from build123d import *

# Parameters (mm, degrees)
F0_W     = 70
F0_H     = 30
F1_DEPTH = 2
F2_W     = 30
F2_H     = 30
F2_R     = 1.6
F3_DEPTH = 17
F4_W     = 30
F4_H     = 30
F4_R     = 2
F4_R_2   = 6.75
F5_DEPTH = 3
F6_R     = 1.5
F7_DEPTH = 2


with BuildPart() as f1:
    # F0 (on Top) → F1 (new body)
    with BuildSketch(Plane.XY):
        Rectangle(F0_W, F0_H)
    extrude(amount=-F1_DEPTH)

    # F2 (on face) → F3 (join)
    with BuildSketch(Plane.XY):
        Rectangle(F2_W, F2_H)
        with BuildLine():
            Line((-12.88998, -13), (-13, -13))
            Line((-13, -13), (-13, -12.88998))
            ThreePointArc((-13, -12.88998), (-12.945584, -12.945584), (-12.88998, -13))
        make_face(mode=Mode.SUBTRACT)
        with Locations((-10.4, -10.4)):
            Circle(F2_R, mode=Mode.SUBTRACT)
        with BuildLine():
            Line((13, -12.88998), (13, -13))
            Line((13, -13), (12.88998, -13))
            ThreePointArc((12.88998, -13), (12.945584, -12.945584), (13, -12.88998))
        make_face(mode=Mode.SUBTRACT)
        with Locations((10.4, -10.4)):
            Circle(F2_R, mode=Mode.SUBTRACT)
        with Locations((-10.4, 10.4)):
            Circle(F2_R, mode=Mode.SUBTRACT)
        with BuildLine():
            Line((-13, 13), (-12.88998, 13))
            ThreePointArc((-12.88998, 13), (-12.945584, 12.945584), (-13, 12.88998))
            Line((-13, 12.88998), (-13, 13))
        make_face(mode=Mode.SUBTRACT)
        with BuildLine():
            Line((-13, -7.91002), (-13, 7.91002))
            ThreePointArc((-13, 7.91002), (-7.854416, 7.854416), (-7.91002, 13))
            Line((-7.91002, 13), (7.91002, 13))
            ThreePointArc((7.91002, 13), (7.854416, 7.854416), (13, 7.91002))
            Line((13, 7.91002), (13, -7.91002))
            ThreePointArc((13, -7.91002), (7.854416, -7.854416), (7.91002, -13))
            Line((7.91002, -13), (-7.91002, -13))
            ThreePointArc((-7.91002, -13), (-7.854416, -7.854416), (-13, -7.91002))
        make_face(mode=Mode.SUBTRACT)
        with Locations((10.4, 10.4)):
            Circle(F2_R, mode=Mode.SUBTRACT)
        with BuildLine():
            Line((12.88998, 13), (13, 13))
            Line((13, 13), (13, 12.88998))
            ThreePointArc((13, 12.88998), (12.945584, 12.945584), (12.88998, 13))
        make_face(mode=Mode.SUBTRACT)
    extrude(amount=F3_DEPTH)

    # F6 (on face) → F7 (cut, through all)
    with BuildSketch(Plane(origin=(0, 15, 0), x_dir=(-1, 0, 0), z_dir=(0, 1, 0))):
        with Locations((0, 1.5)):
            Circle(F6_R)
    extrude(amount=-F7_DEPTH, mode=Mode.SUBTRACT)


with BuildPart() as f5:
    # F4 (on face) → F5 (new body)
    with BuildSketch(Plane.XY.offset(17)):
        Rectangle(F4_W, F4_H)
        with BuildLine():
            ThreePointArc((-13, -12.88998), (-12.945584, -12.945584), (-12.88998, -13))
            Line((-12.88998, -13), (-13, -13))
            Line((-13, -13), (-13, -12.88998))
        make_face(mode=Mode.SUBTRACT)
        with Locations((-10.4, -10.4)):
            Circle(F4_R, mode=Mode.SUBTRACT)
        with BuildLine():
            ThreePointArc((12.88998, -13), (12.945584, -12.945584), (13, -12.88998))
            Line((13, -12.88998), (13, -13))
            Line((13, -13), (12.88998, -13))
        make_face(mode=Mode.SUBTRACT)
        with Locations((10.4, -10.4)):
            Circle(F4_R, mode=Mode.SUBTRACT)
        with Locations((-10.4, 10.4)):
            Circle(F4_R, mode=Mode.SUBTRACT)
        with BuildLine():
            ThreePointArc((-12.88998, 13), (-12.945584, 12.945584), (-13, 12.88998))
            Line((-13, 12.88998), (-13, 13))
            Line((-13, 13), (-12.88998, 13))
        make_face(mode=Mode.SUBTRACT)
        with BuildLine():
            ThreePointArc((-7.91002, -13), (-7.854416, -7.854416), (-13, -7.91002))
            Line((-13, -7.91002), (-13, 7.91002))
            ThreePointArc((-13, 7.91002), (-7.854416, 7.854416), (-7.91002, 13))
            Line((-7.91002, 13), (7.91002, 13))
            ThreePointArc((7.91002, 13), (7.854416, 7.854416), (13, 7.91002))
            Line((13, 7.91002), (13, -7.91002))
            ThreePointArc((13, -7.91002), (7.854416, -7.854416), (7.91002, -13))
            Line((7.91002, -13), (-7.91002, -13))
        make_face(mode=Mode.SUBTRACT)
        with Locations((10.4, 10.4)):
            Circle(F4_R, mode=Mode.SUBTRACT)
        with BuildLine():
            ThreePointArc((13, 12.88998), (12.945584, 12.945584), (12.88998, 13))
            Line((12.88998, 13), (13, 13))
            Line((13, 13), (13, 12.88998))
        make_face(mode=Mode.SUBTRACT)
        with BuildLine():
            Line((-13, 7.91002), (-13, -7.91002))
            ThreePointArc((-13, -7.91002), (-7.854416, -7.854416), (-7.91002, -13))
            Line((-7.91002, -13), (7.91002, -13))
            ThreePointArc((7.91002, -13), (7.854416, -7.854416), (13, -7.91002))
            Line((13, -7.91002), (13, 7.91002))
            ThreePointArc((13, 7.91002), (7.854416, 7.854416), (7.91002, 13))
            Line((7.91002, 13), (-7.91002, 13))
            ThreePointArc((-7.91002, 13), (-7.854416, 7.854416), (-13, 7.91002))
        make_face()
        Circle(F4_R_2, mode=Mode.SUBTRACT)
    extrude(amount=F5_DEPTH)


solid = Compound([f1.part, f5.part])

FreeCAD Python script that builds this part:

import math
import FreeCAD as App
import Part
import Sketcher


def add_polygon(sketch, points):
    """Adds a closed chain of lines whose ends are joined by coincident constraints."""
    first, n = sketch.GeometryCount, len(points)
    for a, b in zip(points, points[1:] + points[:1]):
        sketch.addGeometry(Part.LineSegment(App.Vector(*a, 0), App.Vector(*b, 0)), False)
    for i in range(n):
        sketch.addConstraint(Sketcher.Constraint("Coincident", first + i, 2, first + (i + 1) % n, 1))

doc = App.newDocument("Part")
params = doc.addObject("Spreadsheet::Sheet", "Params")
for row, (alias, value) in enumerate([
    ("sketch1_width", "70 mm"),
    ("sketch1_height", "30 mm"),
    ("pad1_length", "2 mm"),
    ("sketch2_diameter", "3.2 mm"),
    ("sketch2_radius", "3.6 mm"),
    ("sketch2_width", "30 mm"),
    ("pad2_length", "17 mm"),
    ("sketch3_diameter", "3 mm"),
    ("pocket1_length", "2 mm"),
    ("sketch4_diameter", "4 mm"),
    ("sketch4_diameter2", "13.5 mm"),
    ("sketch4_width", "30 mm"),
    ("pad3_length", "3 mm"),
], start=1):
    params.set(f"A{row}", alias)
    params.set(f"B{row}", "=" + value)
    params.setAlias(f"B{row}", alias)

body = doc.addObject("PartDesign::Body", "Body")

# Sketch on XY plane
sketch1 = body.newObject("Sketcher::SketchObject", "Sketch")
sketch1.AttachmentSupport = (doc.getObject("XY_Plane"), [""])
sketch1.MapMode = "FlatFace"
add_polygon(sketch1, [(-35, 15), (-35, -15), (35, -15), (35, 15)])  # lines 0-3
sketch1.addConstraint([
    Sketcher.Constraint("Vertical", 0),
    Sketcher.Constraint("Horizontal", 1),
    Sketcher.Constraint("Vertical", 2),
    Sketcher.Constraint("Horizontal", 3),
    Sketcher.Constraint("Symmetric", 0, 2, 2, 2, -1, 1),
    Sketcher.Constraint("DistanceX", 1, 1, 1, 2, 70.0),
    Sketcher.Constraint("DistanceY", 0, 2, 0, 1, 30.0),
])
sketch1.setExpression("Constraints[9]", "Params.sketch1_width")
sketch1.setExpression("Constraints[10]", "Params.sketch1_height")
pad1 = body.newObject("PartDesign::Pad", "Pad")
pad1.Profile = sketch1
pad1.setExpression("Length", "Params.pad1_length")
pad1.Reversed = True

# Sketch on XY plane
sketch2 = body.newObject("Sketcher::SketchObject", "Sketch001")
sketch2.AttachmentSupport = (doc.getObject("XY_Plane"), [""])
sketch2.MapMode = "FlatFace"
add_polygon(sketch2, [(-15, 15), (-15, -15), (15, -15), (15, 15)])  # lines 0-3
sketch2.addGeometry(Part.ArcOfCircle(Part.Circle(App.Vector(-10.398065, -10.398065, 0), App.Vector(0, 0, 1), 3.602736), math.radians(-136.237316), math.radians(-133.762684)), False)  # 4
sketch2.addGeometry(Part.LineSegment(App.Vector(-12.88998, -13, 0), App.Vector(-13, -13, 0)), False)  # 5
sketch2.addGeometry(Part.LineSegment(App.Vector(-13, -13, 0), App.Vector(-13, -12.88998, 0)), False)  # 6
sketch2.addGeometry(Part.Circle(App.Vector(-10.4, -10.4, 0), App.Vector(0, 0, 1), 1.6), False)  # 7
sketch2.addGeometry(Part.ArcOfCircle(Part.Circle(App.Vector(10.398065, -10.398065, 0), App.Vector(0, 0, 1), 3.602736), math.radians(-46.237316), math.radians(-43.762684)), False)  # 8
sketch2.addGeometry(Part.LineSegment(App.Vector(13, -12.88998, 0), App.Vector(13, -13, 0)), False)  # 9
sketch2.addGeometry(Part.LineSegment(App.Vector(13, -13, 0), App.Vector(12.88998, -13, 0)), False)  # 10
sketch2.addGeometry(Part.Circle(App.Vector(10.4, -10.4, 0), App.Vector(0, 0, 1), 1.6), False)  # 11
sketch2.addGeometry(Part.Circle(App.Vector(-10.4, 10.4, 0), App.Vector(0, 0, 1), 1.6), False)  # 12
sketch2.addGeometry(Part.LineSegment(App.Vector(-13, 12.88998, 0), App.Vector(-13, 13, 0)), False)  # 13
sketch2.addGeometry(Part.LineSegment(App.Vector(-13, 13, 0), App.Vector(-12.88998, 13, 0)), False)  # 14
sketch2.addGeometry(Part.ArcOfCircle(Part.Circle(App.Vector(-10.398065, 10.398065, 0), App.Vector(0, 0, 1), 3.602736), math.radians(133.762684), math.radians(136.237316)), False)  # 15
sketch2.addGeometry(Part.ArcOfCircle(Part.Circle(App.Vector(-10.4, -10.4, 0), App.Vector(0, 0, 1), 3.6), math.radians(-46.238246), math.radians(136.238246)), False)  # 16
sketch2.addGeometry(Part.LineSegment(App.Vector(-13, -7.91002, 0), App.Vector(-13, 7.91002, 0)), False)  # 17
sketch2.addGeometry(Part.ArcOfCircle(Part.Circle(App.Vector(-10.4, 10.4, 0), App.Vector(0, 0, 1), 3.6), math.radians(-136.238246), math.radians(46.238246)), False)  # 18
sketch2.addGeometry(Part.LineSegment(App.Vector(-7.91002, 13, 0), App.Vector(7.91002, 13, 0)), False)  # 19
sketch2.addGeometry(Part.ArcOfCircle(Part.Circle(App.Vector(10.4, 10.4, 0), App.Vector(0, 0, 1), 3.6), math.radians(133.761754), math.radians(316.238246)), False)  # 20
sketch2.addGeometry(Part.LineSegment(App.Vector(13, 7.91002, 0), App.Vector(13, -7.91002, 0)), False)  # 21
sketch2.addGeometry(Part.ArcOfCircle(Part.Circle(App.Vector(10.4, -10.4, 0), App.Vector(0, 0, 1), 3.6), math.radians(43.761754), math.radians(226.238246)), False)  # 22
sketch2.addGeometry(Part.LineSegment(App.Vector(7.91002, -13, 0), App.Vector(-7.91002, -13, 0)), False)  # 23
sketch2.addGeometry(Part.Circle(App.Vector(10.4, 10.4, 0), App.Vector(0, 0, 1), 1.6), False)  # 24
sketch2.addGeometry(Part.ArcOfCircle(Part.Circle(App.Vector(10.398065, 10.398065, 0), App.Vector(0, 0, 1), 3.602736), math.radians(43.762684), math.radians(46.237316)), False)  # 25
sketch2.addGeometry(Part.LineSegment(App.Vector(12.88998, 13, 0), App.Vector(13, 13, 0)), False)  # 26
sketch2.addGeometry(Part.LineSegment(App.Vector(13, 13, 0), App.Vector(13, 12.88998, 0)), False)  # 27
sketch2.addConstraint([
    Sketcher.Constraint("Coincident", 4, 2, 5, 1),
    Sketcher.Constraint("Coincident", 5, 2, 6, 1),
    Sketcher.Constraint("Coincident", 6, 2, 4, 1),
    Sketcher.Constraint("Coincident", 8, 2, 9, 1),
    Sketcher.Constraint("Coincident", 9, 2, 10, 1),
    Sketcher.Constraint("Coincident", 10, 2, 8, 1),
    Sketcher.Constraint("Coincident", 13, 2, 14, 1),
    Sketcher.Constraint("Coincident", 14, 2, 15, 1),
    Sketcher.Constraint("Coincident", 15, 2, 13, 1),
    Sketcher.Constraint("Coincident", 16, 2, 17, 1),
    Sketcher.Constraint("Coincident", 17, 2, 18, 1),
    Sketcher.Constraint("Coincident", 18, 2, 19, 1),
    Sketcher.Constraint("Coincident", 19, 2, 20, 1),
    Sketcher.Constraint("Coincident", 20, 2, 21, 1),
    Sketcher.Constraint("Coincident", 21, 2, 22, 1),
    Sketcher.Constraint("Coincident", 22, 2, 23, 1),
    Sketcher.Constraint("Coincident", 23, 2, 16, 1),
    Sketcher.Constraint("Coincident", 25, 2, 26, 1),
    Sketcher.Constraint("Coincident", 26, 2, 27, 1),
    Sketcher.Constraint("Coincident", 27, 2, 25, 1),
    Sketcher.Constraint("Vertical", 0),
    Sketcher.Constraint("Horizontal", 1),
    Sketcher.Constraint("Vertical", 2),
    Sketcher.Constraint("Horizontal", 3),
    Sketcher.Constraint("Horizontal", 5),
    Sketcher.Constraint("Vertical", 6),
    Sketcher.Constraint("Vertical", 9),
    Sketcher.Constraint("Horizontal", 10),
    Sketcher.Constraint("Vertical", 13),
    Sketcher.Constraint("Horizontal", 14),
    Sketcher.Constraint("Vertical", 17),
    Sketcher.Constraint("Horizontal", 19),
    Sketcher.Constraint("Vertical", 21),
    Sketcher.Constraint("Horizontal", 23),
    Sketcher.Constraint("Horizontal", 26),
    Sketcher.Constraint("Vertical", 27),
    Sketcher.Constraint("Coincident", 16, 3, 7, 3),
    Sketcher.Constraint("Coincident", 18, 3, 12, 3),
    Sketcher.Constraint("Coincident", 22, 3, 11, 3),
    Sketcher.Constraint("Coincident", 24, 3, 20, 3),
    Sketcher.Constraint("Equal", 4, 8),
    Sketcher.Constraint("Equal", 7, 11),
    Sketcher.Constraint("Equal", 11, 12),
    Sketcher.Constraint("Equal", 8, 15),
    Sketcher.Constraint("Equal", 16, 18),
    Sketcher.Constraint("Equal", 18, 20),
    Sketcher.Constraint("Equal", 20, 22),
    Sketcher.Constraint("Equal", 12, 24),
    Sketcher.Constraint("Equal", 15, 25),
    Sketcher.Constraint("Symmetric", 11, 3, 12, 3, -1, 1),
    Sketcher.Constraint("Symmetric", 8, 3, 15, 3, -1, 1),
    Sketcher.Constraint("Symmetric", 7, 3, 20, 3, -1, 1),
    Sketcher.Constraint("Symmetric", 4, 3, 25, 3, -1, 1),
    Sketcher.Constraint("Symmetric", 0, 2, 2, 2, -1, 1),
    Sketcher.Constraint("Symmetric", 9, 2, 13, 2, -1, 1),
    Sketcher.Constraint("Symmetric", 5, 2, 26, 2, -1, 1),
    Sketcher.Constraint("Symmetric", 4, 3, 8, 3, -2),
    Sketcher.Constraint("Symmetric", 7, 3, 11, 3, -2),
    Sketcher.Constraint("Symmetric", 5, 2, 9, 2, -2),
    Sketcher.Constraint("Horizontal", 14, 2, 18, 2),
    Sketcher.Constraint("Horizontal", 17, 2, 20, 2),
    Sketcher.Constraint("Horizontal", 10, 2, 22, 2),
    Sketcher.Constraint("Vertical", 15, 2, 16, 2),
    Sketcher.Constraint("Equal", 3, 0),
    Sketcher.Constraint("Equal", 26, 6),
    Sketcher.Constraint("Equal", 23, 17),
    Sketcher.Constraint("Diameter", 7, 3.2),
    Sketcher.Constraint("Radius", 16, 3.6),
    Sketcher.Constraint("DistanceX", 1, 1, 1, 2, 30.0),
    Sketcher.Constraint("DistanceY", 4, 2, -1, 1, 13.0),
    Sketcher.Constraint("DistanceX", 5, 2, -1, 1, 13.0),
    Sketcher.Constraint("DistanceX", 7, 3, -1, 1, 10.4),
    Sketcher.Constraint("Radius", 4, 3.602736),
    Sketcher.Constraint("DistanceX", 5, 2, 5, 1, 0.11002),
])
sketch2.setExpression("Constraints[70]", "Params.sketch2_diameter")
sketch2.setExpression("Constraints[71]", "Params.sketch2_radius")
sketch2.setExpression("Constraints[72]", "Params.sketch2_width")
pad2 = body.newObject("PartDesign::Pad", "Pad001")
pad2.Profile = sketch2
pad2.setExpression("Length", "Params.pad2_length")

# Sketch on XZ plane
sketch3 = body.newObject("Sketcher::SketchObject", "Sketch002")
sketch3.AttachmentSupport = (doc.getObject("XZ_Plane"), [""])
sketch3.MapMode = "FlatFace"
sketch3.AttachmentOffset = App.Placement(App.Vector(0, 0, -15), App.Rotation())
sketch3.addGeometry(Part.Circle(App.Vector(0, 1.5, 0), App.Vector(0, 0, 1), 1.5), False)
sketch3.addConstraint([
    Sketcher.Constraint("PointOnObject", 0, 3, -2),
    Sketcher.Constraint("Diameter", 0, 3.0),
    Sketcher.Constraint("DistanceY", -1, 1, 0, 3, 1.5),
])
sketch3.setExpression("Constraints[1]", "Params.sketch3_diameter")
pocket1 = body.newObject("PartDesign::Pocket", "Pocket")
pocket1.Profile = sketch3
pocket1.setExpression("Length", "Params.pocket1_length")
pocket1.Reversed = True
body2 = doc.addObject("PartDesign::Body", "Body001")

# Sketch on XY plane
sketch4 = body2.newObject("Sketcher::SketchObject", "Sketch003")
sketch4.AttachmentSupport = (doc.getObject("XY_Plane001"), [""])
sketch4.MapMode = "FlatFace"
sketch4.AttachmentOffset = App.Placement(App.Vector(0, 0, 17), App.Rotation())
add_polygon(sketch4, [(-15, 15), (-15, -15), (15, -15), (15, 15)])  # lines 0-3
sketch4.addGeometry(Part.LineSegment(App.Vector(-13, -13, 0), App.Vector(-13, -12.88998, 0)), False)  # 4
sketch4.addGeometry(Part.ArcOfCircle(Part.Circle(App.Vector(-10.398065, -10.398065, 0), App.Vector(0, 0, 1), 3.602736), math.radians(-136.237316), math.radians(-133.762684)), False)  # 5
sketch4.addGeometry(Part.LineSegment(App.Vector(-12.88998, -13, 0), App.Vector(-13, -13, 0)), False)  # 6
sketch4.addGeometry(Part.Circle(App.Vector(-10.4, -10.4, 0), App.Vector(0, 0, 1), 2), False)  # 7
sketch4.addGeometry(Part.LineSegment(App.Vector(13, -13, 0), App.Vector(12.88998, -13, 0)), False)  # 8
sketch4.addGeometry(Part.ArcOfCircle(Part.Circle(App.Vector(10.398065, -10.398065, 0), App.Vector(0, 0, 1), 3.602736), math.radians(-46.237316), math.radians(-43.762684)), False)  # 9
sketch4.addGeometry(Part.LineSegment(App.Vector(13, -12.88998, 0), App.Vector(13, -13, 0)), False)  # 10
sketch4.addGeometry(Part.Circle(App.Vector(10.4, -10.4, 0), App.Vector(0, 0, 1), 2), False)  # 11
sketch4.addGeometry(Part.Circle(App.Vector(-10.4, 10.4, 0), App.Vector(0, 0, 1), 2), False)  # 12
sketch4.addGeometry(Part.LineSegment(App.Vector(-13, 13, 0), App.Vector(-12.88998, 13, 0)), False)  # 13
sketch4.addGeometry(Part.ArcOfCircle(Part.Circle(App.Vector(-10.398065, 10.398065, 0), App.Vector(0, 0, 1), 3.602736), math.radians(133.762684), math.radians(136.237316)), False)  # 14
sketch4.addGeometry(Part.LineSegment(App.Vector(-13, 12.88998, 0), App.Vector(-13, 13, 0)), False)  # 15
sketch4.addGeometry(Part.Circle(App.Vector(0, 0, 0), App.Vector(0, 0, 1), 6.75), False)  # 16
sketch4.addGeometry(Part.Circle(App.Vector(10.4, 10.4, 0), App.Vector(0, 0, 1), 2), False)  # 17
sketch4.addGeometry(Part.LineSegment(App.Vector(13, 13, 0), App.Vector(13, 12.88998, 0)), False)  # 18
sketch4.addGeometry(Part.ArcOfCircle(Part.Circle(App.Vector(10.398065, 10.398065, 0), App.Vector(0, 0, 1), 3.602736), math.radians(43.762684), math.radians(46.237316)), False)  # 19
sketch4.addGeometry(Part.LineSegment(App.Vector(12.88998, 13, 0), App.Vector(13, 13, 0)), False)  # 20
sketch4.addConstraint([
    Sketcher.Constraint("Coincident", 4, 2, 5, 1),
    Sketcher.Constraint("Coincident", 5, 2, 6, 1),
    Sketcher.Constraint("Coincident", 6, 2, 4, 1),
    Sketcher.Constraint("Coincident", 8, 2, 9, 1),
    Sketcher.Constraint("Coincident", 9, 2, 10, 1),
    Sketcher.Constraint("Coincident", 10, 2, 8, 1),
    Sketcher.Constraint("Coincident", 13, 2, 14, 1),
    Sketcher.Constraint("Coincident", 14, 2, 15, 1),
    Sketcher.Constraint("Coincident", 15, 2, 13, 1),
    Sketcher.Constraint("Coincident", 18, 2, 19, 1),
    Sketcher.Constraint("Coincident", 19, 2, 20, 1),
    Sketcher.Constraint("Coincident", 20, 2, 18, 1),
    Sketcher.Constraint("Vertical", 0),
    Sketcher.Constraint("Horizontal", 1),
    Sketcher.Constraint("Vertical", 2),
    Sketcher.Constraint("Horizontal", 3),
    Sketcher.Constraint("Vertical", 4),
    Sketcher.Constraint("Horizontal", 6),
    Sketcher.Constraint("Horizontal", 8),
    Sketcher.Constraint("Vertical", 10),
    Sketcher.Constraint("Horizontal", 13),
    Sketcher.Constraint("Vertical", 15),
    Sketcher.Constraint("Vertical", 18),
    Sketcher.Constraint("Horizontal", 20),
    Sketcher.Constraint("Coincident", 16, 3, -1, 1),
    Sketcher.Constraint("Equal", 5, 9),
    Sketcher.Constraint("Equal", 7, 11),
    Sketcher.Constraint("Equal", 11, 12),
    Sketcher.Constraint("Equal", 9, 14),
    Sketcher.Constraint("Equal", 12, 17),
    Sketcher.Constraint("Equal", 14, 19),
    Sketcher.Constraint("Symmetric", 11, 3, 12, 3, -1, 1),
    Sketcher.Constraint("Symmetric", 9, 3, 14, 3, -1, 1),
    Sketcher.Constraint("Symmetric", 7, 3, 17, 3, -1, 1),
    Sketcher.Constraint("Symmetric", 5, 3, 19, 3, -1, 1),
    Sketcher.Constraint("Symmetric", 0, 2, 2, 2, -1, 1),
    Sketcher.Constraint("Symmetric", 10, 2, 15, 2, -1, 1),
    Sketcher.Constraint("Symmetric", 6, 2, 20, 2, -1, 1),
    Sketcher.Constraint("Symmetric", 5, 3, 9, 3, -2),
    Sketcher.Constraint("Symmetric", 7, 3, 11, 3, -2),
    Sketcher.Constraint("Symmetric", 6, 2, 10, 2, -2),
    Sketcher.Constraint("Equal", 3, 0),
    Sketcher.Constraint("Equal", 20, 4),
    Sketcher.Constraint("Diameter", 7, 4.0),
    Sketcher.Constraint("Diameter", 16, 13.5),
    Sketcher.Constraint("DistanceX", 1, 1, 1, 2, 30.0),
    Sketcher.Constraint("DistanceX", 4, 2, -1, 1, 13.0),
    Sketcher.Constraint("DistanceY", 5, 2, -1, 1, 13.0),
    Sketcher.Constraint("DistanceX", 7, 3, -1, 1, 10.4),
    Sketcher.Constraint("DistanceY", 7, 3, -1, 1, 10.4),
    Sketcher.Constraint("Radius", 5, 3.602736),
    Sketcher.Constraint("DistanceX", 6, 2, 6, 1, 0.11002),
])
sketch4.setExpression("Constraints[47]", "Params.sketch4_diameter")
sketch4.setExpression("Constraints[48]", "Params.sketch4_diameter2")
sketch4.setExpression("Constraints[49]", "Params.sketch4_width")
pad3 = body2.newObject("PartDesign::Pad", "Pad002")
pad3.Profile = sketch4
pad3.setExpression("Length", "Params.pad3_length")

doc.recompute()
